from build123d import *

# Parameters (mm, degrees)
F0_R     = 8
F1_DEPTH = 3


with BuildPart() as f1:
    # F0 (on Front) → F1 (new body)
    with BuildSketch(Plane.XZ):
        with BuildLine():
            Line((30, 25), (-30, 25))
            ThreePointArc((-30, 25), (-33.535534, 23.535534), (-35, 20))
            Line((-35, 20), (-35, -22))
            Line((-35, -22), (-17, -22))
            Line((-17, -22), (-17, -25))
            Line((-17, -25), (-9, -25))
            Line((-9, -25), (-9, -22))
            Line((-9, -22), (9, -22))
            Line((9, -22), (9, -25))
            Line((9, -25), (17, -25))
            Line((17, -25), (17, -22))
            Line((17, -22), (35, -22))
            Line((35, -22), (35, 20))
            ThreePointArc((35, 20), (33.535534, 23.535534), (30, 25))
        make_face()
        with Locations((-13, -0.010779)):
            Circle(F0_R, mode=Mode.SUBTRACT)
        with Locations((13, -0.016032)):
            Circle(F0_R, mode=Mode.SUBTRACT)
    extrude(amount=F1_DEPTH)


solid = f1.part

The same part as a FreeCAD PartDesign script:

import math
import FreeCAD as App
import Part
import Sketcher
from FreeCAD import Vector
Q = App.Units.Quantity

doc = App.newDocument("Part")
body = doc.addObject("PartDesign::Body", "Body")

# Sketch on XZ plane
sketch1 = doc.addObject("Sketcher::SketchObject", "Sketch")
body.addObject(sketch1)
sketch1.AttachmentSupport = (doc.XZ_Plane, [""])
sketch1.MapMode = "FlatFace"
sketch1.addGeometry(Part.LineSegment(Vector(30, 25, 0), Vector(-30, 25, 0)), False)
sketch1.addGeometry(Part.ArcOfCircle(Part.Circle(Vector(-30, 20, 0), Vector(0, 0, 1), 5), math.radians(90), math.radians(180)), False)
sketch1.addGeometry(Part.LineSegment(Vector(-35, 20, 0), Vector(-35, -22, 0)), False)
sketch1.addGeometry(Part.LineSegment(Vector(-35, -22, 0), Vector(-17, -22, 0)), False)
sketch1.addGeometry(Part.LineSegment(Vector(-17, -22, 0), Vector(-17, -25, 0)), False)
sketch1.addGeometry(Part.LineSegment(Vector(-17, -25, 0), Vector(-9, -25, 0)), False)
sketch1.addGeometry(Part.LineSegment(Vector(-9, -25, 0), Vector(-9, -22, 0)), False)
sketch1.addGeometry(Part.LineSegment(Vector(-9, -22, 0), Vector(9, -22, 0)), False)
sketch1.addGeometry(Part.LineSegment(Vector(9, -22, 0), Vector(9, -25, 0)), False)
sketch1.addGeometry(Part.LineSegment(Vector(9, -25, 0), Vector(17, -25, 0)), False)
sketch1.addGeometry(Part.LineSegment(Vector(17, -25, 0), Vector(17, -22, 0)), False)
sketch1.addGeometry(Part.LineSegment(Vector(17, -22, 0), Vector(35, -22, 0)), False)
sketch1.addGeometry(Part.LineSegment(Vector(35, -22, 0), Vector(35, 20, 0)), False)
sketch1.addGeometry(Part.ArcOfCircle(Part.Circle(Vector(30, 20, 0), Vector(0, 0, 1), 5), math.radians(0), math.radians(90)), False)
sketch1.addGeometry(Part.Circle(Vector(13, 0, 0), Vector(0, 0, 1), 8), False)
sketch1.addGeometry(Part.Circle(Vector(-13, 0, 0), Vector(0, 0, 1), 8), False)
sketch1.addConstraint(Sketcher.Constraint("Tangent", 0, 2, 1, 1))
sketch1.addConstraint(Sketcher.Constraint("Tangent", 1, 2, 2, 1))
sketch1.addConstraint(Sketcher.Constraint("Coincident", 2, 2, 3, 1))
sketch1.addConstraint(Sketcher.Constraint("Coincident", 3, 2, 4, 1))
sketch1.addConstraint(Sketcher.Constraint("Coincident", 4, 2, 5, 1))
sketch1.addConstraint(Sketcher.Constraint("Coincident", 5, 2, 6, 1))
sketch1.addConstraint(Sketcher.Constraint("Coincident", 6, 2, 7, 1))
sketch1.addConstraint(Sketcher.Constraint("Coincident", 7, 2, 8, 1))
sketch1.addConstraint(Sketcher.Constraint("Coincident", 8, 2, 9, 1))
sketch1.addConstraint(Sketcher.Constraint("Coincident", 9, 2, 10, 1))
sketch1.addConstraint(Sketcher.Constraint("Coincident", 10, 2, 11, 1))
sketch1.addConstraint(Sketcher.Constraint("Coincident", 11, 2, 12, 1))
sketch1.addConstraint(Sketcher.Constraint("Tangent", 12, 2, 13, 1))
sketch1.addConstraint(Sketcher.Constraint("Tangent", 13, 2, 0, 1))
sketch1.addConstraint(Sketcher.Constraint("Horizontal", 0))
sketch1.addConstraint(Sketcher.Constraint("Vertical", 2))
sketch1.addConstraint(Sketcher.Constraint("Horizontal", 3))
sketch1.addConstraint(Sketcher.Constraint("Vertical", 4))
sketch1.addConstraint(Sketcher.Constraint("Horizontal", 5))
sketch1.addConstraint(Sketcher.Constraint("Vertical", 6))
sketch1.addConstraint(Sketcher.Constraint("Horizontal", 7))
sketch1.addConstraint(Sketcher.Constraint("Vertical", 8))
sketch1.addConstraint(Sketcher.Constraint("Horizontal", 9))
sketch1.addConstraint(Sketcher.Constraint("Vertical", 10))
sketch1.addConstraint(Sketcher.Constraint("Horizontal", 11))
sketch1.addConstraint(Sketcher.Constraint("Vertical", 12))
sketch1.addConstraint(Sketcher.Constraint("Equal", 1, 13))
sketch1.addConstraint(Sketcher.Constraint("Equal", 14, 15))
sketch1.addConstraint(Sketcher.Constraint("Symmetric", 5, 2, 8, 2, -2))
sketch1.addConstraint(Sketcher.Constraint("Symmetric", 3, 2, 10, 2, -2))
sketch1.addConstraint(Sketcher.Constraint("Horizontal", 3, 2, 6, 2))
sketch1.addConstraint(Sketcher.Constraint("Equal", 3, 7))
sketch1.addConstraint(Sketcher.Constraint("Equal", 7, 11))
sketch1.addConstraint(Sketcher.Constraint("Diameter", 14, Q("16 mm")))
sketch1.addConstraint(Sketcher.Constraint("Radius", 1, Q("5 mm")))
sketch1.addConstraint(Sketcher.Constraint("DistanceX", 0, 2, 0, 1, Q("60 mm")))
sketch1.addConstraint(Sketcher.Constraint("DistanceX", 3, 1, 3, 2, Q("18 mm")))
sketch1.addConstraint(Sketcher.Constraint("DistanceY", 2, 2, 2, 1, Q("42 mm")))
sketch1.addConstraint(Sketcher.Constraint("DistanceY", 4, 2, 4, 1, Q("3 mm")))
sketch1.addConstraint(Sketcher.Constraint("DistanceY", -1, 1, 1, 3, Q("20 mm")))
sketch1.addConstraint(Sketcher.Constraint("DistanceX", -1, 1, 14, 3, Q("13 mm")))
sketch1.addConstraint(Sketcher.Constraint("DistanceX", 15, 3, -1, 1, Q("13 mm")))
sketch1.addConstraint(Sketcher.Constraint("DistanceY", 15, 3, -1, 1, Q("0.010779 mm")))
sketch1.addConstraint(Sketcher.Constraint("DistanceY", 14, 3, 0, 2, Q("25.016032 mm")))
pad1 = doc.addObject("PartDesign::Pad", "Pad")
body.addObject(pad1)
pad1.Profile = sketch1
pad1.Length = 3

doc.recompute()
